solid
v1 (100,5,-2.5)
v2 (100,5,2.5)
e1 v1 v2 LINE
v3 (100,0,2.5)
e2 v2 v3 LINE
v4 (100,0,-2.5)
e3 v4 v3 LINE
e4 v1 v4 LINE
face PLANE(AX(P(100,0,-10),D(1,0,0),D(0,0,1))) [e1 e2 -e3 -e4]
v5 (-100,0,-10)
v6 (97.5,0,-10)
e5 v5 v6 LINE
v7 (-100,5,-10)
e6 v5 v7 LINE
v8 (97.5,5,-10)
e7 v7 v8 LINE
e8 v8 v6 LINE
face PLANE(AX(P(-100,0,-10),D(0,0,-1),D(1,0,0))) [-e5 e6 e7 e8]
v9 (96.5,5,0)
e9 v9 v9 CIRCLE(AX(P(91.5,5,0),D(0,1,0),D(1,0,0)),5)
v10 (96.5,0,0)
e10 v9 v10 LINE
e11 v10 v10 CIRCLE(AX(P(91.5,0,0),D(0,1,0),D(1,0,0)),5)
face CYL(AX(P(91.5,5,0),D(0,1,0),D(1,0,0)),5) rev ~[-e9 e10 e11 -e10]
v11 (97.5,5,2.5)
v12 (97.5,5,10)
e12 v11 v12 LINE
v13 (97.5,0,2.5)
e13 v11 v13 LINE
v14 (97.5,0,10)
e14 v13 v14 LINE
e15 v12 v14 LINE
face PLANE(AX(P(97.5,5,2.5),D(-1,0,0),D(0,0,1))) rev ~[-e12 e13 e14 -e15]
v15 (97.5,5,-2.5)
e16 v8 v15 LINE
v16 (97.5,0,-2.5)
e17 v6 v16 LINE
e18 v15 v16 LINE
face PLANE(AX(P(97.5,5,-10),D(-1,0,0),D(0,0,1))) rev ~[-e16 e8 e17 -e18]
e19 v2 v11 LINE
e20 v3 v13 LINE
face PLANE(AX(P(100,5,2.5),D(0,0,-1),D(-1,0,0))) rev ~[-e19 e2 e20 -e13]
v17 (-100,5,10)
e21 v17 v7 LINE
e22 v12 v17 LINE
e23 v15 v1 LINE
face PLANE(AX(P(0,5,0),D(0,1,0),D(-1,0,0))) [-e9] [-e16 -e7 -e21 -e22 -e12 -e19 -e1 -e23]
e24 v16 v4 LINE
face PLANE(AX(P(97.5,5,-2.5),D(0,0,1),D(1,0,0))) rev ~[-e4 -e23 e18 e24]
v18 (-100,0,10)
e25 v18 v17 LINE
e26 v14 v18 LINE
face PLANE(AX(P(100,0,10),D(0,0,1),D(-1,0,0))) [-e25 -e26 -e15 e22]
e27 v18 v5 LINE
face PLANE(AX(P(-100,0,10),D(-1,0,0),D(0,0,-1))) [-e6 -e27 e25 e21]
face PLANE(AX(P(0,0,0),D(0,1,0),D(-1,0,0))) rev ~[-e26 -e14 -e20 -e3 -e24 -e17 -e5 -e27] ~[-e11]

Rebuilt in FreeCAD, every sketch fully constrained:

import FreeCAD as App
import Part
import Sketcher
Q = App.Units.Quantity


def add_polygon(sketch, points):
    """Adds a closed chain of lines whose ends are joined by coincident constraints."""
    first, n = sketch.GeometryCount, len(points)
    for a, b in zip(points, points[1:] + points[:1]):
        sketch.addGeometry(Part.LineSegment(App.Vector(*a, 0), App.Vector(*b, 0)), False)
    for i in range(n):
        sketch.addConstraint(Sketcher.Constraint("Coincident", first + i, 2, first + (i + 1) % n, 1))

doc = App.newDocument("Part")
params = doc.addObject("Spreadsheet::Sheet", "Params")
for row, (alias, value) in enumerate([
    ("sketch1_width", "200 mm"),
    ("sketch1_height", "20 mm"),
    ("pad1_length", "5 mm"),
    ("sketch2_width", "2.5 mm"),
    ("sketch2_height", "7.5 mm"),
    ("pocket1_length", "5 mm"),
    ("sketch3_diameter", "10 mm"),
    ("pocket2_length", "5 mm"),
], start=1):
    params.set(f"A{row}", alias)
    params.set(f"B{row}", "=" + value)
    params.setAlias(f"B{row}", alias)

body = doc.addObject("PartDesign::Body", "Body")

# Sketch on XZ plane
sketch1 = doc.addObject("Sketcher::SketchObject", "Sketch")
body.addObject(sketch1)
sketch1.AttachmentSupport = (doc.XZ_Plane, [""])
sketch1.MapMode = "FlatFace"
add_polygon(sketch1, [(-100, 10), (100, 10), (100, -10), (-100, -10)])  # lines 0-3
sketch1.addConstraint(Sketcher.Constraint("Horizontal", 0))
sketch1.addConstraint(Sketcher.Constraint("Vertical", 1))
sketch1.addConstraint(Sketcher.Constraint("Horizontal", 2))
sketch1.addConstraint(Sketcher.Constraint("Vertical", 3))
sketch1.addConstraint(Sketcher.Constraint("Symmetric", 0, 2, 2, 2, -1, 1))
sketch1.addConstraint(Sketcher.Constraint("DistanceX", 0, 1, 0, 2, Q("200 mm")))
sketch1.addConstraint(Sketcher.Constraint("DistanceY", 1, 2, 1, 1, Q("20 mm")))
sketch1.setExpression("Constraints[9]", "Params.sketch1_width")
sketch1.setExpression("Constraints[10]", "Params.sketch1_height")
pad1 = doc.addObject("PartDesign::Pad", "Pad")
body.addObject(pad1)
pad1.Profile = sketch1
pad1.setExpression("Length", "Params.pad1_length")
pad1.Reversed = True

# Sketch on XZ plane
sketch2 = doc.addObject("Sketcher::SketchObject", "Sketch001")
body.addObject(sketch2)
sketch2.AttachmentSupport = (doc.XZ_Plane, [""])
sketch2.MapMode = "FlatFace"
sketch2.AttachmentOffset = App.Placement(App.Vector(0, 0, -5), App.Rotation())
add_polygon(sketch2, [(97.5, -10), (97.5, -2.5), (100, -2.5), (100, -10)])  # lines 0-3
add_polygon(sketch2, [(100, 2.5), (97.5, 2.5), (97.5, 10), (100, 10)])  # lines 4-7
sketch2.addConstraint(Sketcher.Constraint("Vertical", 0))
sketch2.addConstraint(Sketcher.Constraint("Horizontal", 1))
sketch2.addConstraint(Sketcher.Constraint("Vertical", 2))
sketch2.addConstraint(Sketcher.Constraint("Horizontal", 3))
sketch2.addConstraint(Sketcher.Constraint("Horizontal", 4))
sketch2.addConstraint(Sketcher.Constraint("Vertical", 5))
sketch2.addConstraint(Sketcher.Constraint("Horizontal", 6))
sketch2.addConstraint(Sketcher.Constraint("Vertical", 7))
sketch2.addConstraint(Sketcher.Constraint("Symmetric", 0, 2, 4, 2, -1))
sketch2.addConstraint(Sketcher.Constraint("Symmetric", 2, 2, 6, 2, -1))
sketch2.addConstraint(Sketcher.Constraint("DistanceY", 0, 2, 4, 2, Q("5 mm")))
sketch2.addConstraint(Sketcher.Constraint("DistanceX", 1, 1, 1, 2, Q("2.5 mm")))
sketch2.addConstraint(Sketcher.Constraint("DistanceY", 0, 1, 0, 2, Q("7.5 mm")))
sketch2.addConstraint(Sketcher.Constraint("DistanceX", -1, 1, 1, 2, Q("100 mm")))
sketch2.setExpression("Constraints[19]", "Params.sketch2_width")
sketch2.setExpression("Constraints[20]", "Params.sketch2_height")
pocket1 = doc.addObject("PartDesign::Pocket", "Pocket")
body.addObject(pocket1)
pocket1.Profile = sketch2
pocket1.setExpression("Length", "Params.pocket1_length")
pocket1.Reversed = True

# Sketch on XZ plane
sketch3 = doc.addObject("Sketcher::SketchObject", "Sketch002")
body.addObject(sketch3)
sketch3.AttachmentSupport = (doc.XZ_Plane, [""])
sketch3.MapMode = "FlatFace"
sketch3.AttachmentOffset = App.Placement(App.Vector(0, 0, -5), App.Rotation())
sketch3.addGeometry(Part.Circle(App.Vector(92, 0, 0), App.Vector(0, 0, 1), 5), False)
sketch3.addConstraint(Sketcher.Constraint("PointOnObject", 0, 3, -1))
sketch3.addConstraint(Sketcher.Constraint("Diameter", 0, Q("10 mm")))
sketch3.addConstraint(Sketcher.Constraint("DistanceX", -1, 1, 0, 3, Q("91.5 mm")))
sketch3.setExpression("Constraints[1]", "Params.sketch3_diameter")
pocket2 = doc.addObject("PartDesign::Pocket", "Pocket001")
body.addObject(pocket2)
pocket2.Profile = sketch3
pocket2.setExpression("Length", "Params.pocket2_length")
pocket2.Reversed = True

doc.recompute()
